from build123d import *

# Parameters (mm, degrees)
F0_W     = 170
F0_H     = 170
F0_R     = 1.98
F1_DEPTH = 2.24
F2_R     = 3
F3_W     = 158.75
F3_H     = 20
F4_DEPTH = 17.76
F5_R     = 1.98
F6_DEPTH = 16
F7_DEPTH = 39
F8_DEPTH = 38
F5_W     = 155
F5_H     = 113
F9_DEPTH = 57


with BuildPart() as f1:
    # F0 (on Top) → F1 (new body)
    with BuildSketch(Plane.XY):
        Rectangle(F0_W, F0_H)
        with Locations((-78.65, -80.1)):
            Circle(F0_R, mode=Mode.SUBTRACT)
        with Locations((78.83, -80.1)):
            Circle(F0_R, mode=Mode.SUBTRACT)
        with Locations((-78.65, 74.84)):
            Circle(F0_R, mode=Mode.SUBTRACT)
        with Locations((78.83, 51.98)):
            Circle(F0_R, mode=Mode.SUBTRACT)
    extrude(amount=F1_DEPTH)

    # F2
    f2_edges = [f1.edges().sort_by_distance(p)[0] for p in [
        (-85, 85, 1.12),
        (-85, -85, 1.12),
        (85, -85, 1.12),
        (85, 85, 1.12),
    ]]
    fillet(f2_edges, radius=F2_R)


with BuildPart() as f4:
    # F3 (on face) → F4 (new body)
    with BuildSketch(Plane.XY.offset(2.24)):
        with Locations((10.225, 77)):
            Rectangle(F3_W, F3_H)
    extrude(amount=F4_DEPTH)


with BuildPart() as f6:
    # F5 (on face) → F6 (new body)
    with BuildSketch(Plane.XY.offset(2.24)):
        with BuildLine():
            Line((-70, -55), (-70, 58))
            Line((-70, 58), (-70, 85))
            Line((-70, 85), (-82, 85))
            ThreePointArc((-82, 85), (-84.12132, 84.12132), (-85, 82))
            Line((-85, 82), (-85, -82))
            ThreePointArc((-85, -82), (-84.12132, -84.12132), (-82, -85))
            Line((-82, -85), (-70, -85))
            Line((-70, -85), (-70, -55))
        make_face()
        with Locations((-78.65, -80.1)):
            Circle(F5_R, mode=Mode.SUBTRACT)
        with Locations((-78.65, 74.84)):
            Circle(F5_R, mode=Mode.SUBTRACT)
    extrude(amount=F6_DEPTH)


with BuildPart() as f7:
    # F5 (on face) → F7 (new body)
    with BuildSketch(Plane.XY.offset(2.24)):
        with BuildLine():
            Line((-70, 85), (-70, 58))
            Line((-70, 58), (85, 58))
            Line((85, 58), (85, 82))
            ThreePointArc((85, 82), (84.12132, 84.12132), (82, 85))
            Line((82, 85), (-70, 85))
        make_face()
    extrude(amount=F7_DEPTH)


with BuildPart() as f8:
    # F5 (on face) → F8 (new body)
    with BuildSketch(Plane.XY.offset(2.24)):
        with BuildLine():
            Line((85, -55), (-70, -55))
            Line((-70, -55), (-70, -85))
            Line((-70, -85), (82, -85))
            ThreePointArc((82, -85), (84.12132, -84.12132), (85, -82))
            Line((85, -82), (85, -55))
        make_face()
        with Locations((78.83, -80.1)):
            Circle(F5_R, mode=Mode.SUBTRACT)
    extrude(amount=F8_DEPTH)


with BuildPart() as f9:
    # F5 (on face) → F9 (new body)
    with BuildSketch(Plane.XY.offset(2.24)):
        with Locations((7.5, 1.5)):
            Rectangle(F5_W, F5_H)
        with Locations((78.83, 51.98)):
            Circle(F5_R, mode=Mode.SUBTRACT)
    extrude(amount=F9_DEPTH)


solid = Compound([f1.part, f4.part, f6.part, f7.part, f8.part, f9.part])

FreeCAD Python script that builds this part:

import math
import FreeCAD as App
import Part
import Sketcher


def edges_at(feature, points):
    """Names of the edges that pass closest to the given points."""
    edges = feature.Shape.Edges
    near = lambda p: min(range(len(edges)), key=lambda i: edges[i].distToShape(Part.Vertex(*p))[0])
    return sorted({f"Edge{near(p) + 1}" for p in points})


def add_polygon(sketch, points):
    """Adds a closed chain of lines whose ends are joined by coincident constraints."""
    first, n = sketch.GeometryCount, len(points)
    for a, b in zip(points, points[1:] + points[:1]):
        sketch.addGeometry(Part.LineSegment(App.Vector(*a, 0), App.Vector(*b, 0)), False)
    for i in range(n):
        sketch.addConstraint(Sketcher.Constraint("Coincident", first + i, 2, first + (i + 1) % n, 1))

doc = App.newDocument("Part")
params = doc.addObject("Spreadsheet::Sheet", "Params")
for row, (alias, value) in enumerate([
    ("sketch1_diameter", "3.96 mm"),
    ("sketch1_width", "170 mm"),
    ("pad1_length", "2.24 mm"),
    ("fillet_radius", "3 mm"),
    ("sketch2_height", "20 mm"),
    ("sketch2_width", "158.75 mm"),
    ("pad2_length", "17.76 mm"),
    ("sketch3_radius", "3.000001 mm"),
    ("sketch3_diameter", "3.96 mm"),
    ("sketch3_width", "12 mm"),
    ("sketch3_height", "164 mm"),
    ("pad3_length", "16 mm"),
    ("sketch4_radius", "3.000001 mm"),
    ("sketch4_width", "155 mm"),
    ("sketch4_height", "27 mm"),
    ("pad4_length", "39 mm"),
    ("sketch5_radius", "3.000001 mm"),
    ("sketch5_diameter", "3.96 mm"),
    ("sketch5_width", "155 mm"),
    ("sketch5_height", "30 mm"),
    ("pad5_length", "38 mm"),
    ("sketch6_diameter", "3.96 mm"),
    ("sketch6_width", "155 mm"),
    ("sketch6_height", "113 mm"),
    ("pad6_length", "57 mm"),
], start=1):
    params.set(f"A{row}", alias)
    params.set(f"B{row}", "=" + value)
    params.setAlias(f"B{row}", alias)

body = doc.addObject("PartDesign::Body", "Body")

sketch1 = body.newObject("Sketcher::SketchObject", "Sketch")
sketch1.AttachmentSupport = (doc.getObject("XY_Plane"), [""])
sketch1.MapMode = "FlatFace"
add_polygon(sketch1, [(-85, 85), (-85, -85), (85, -85), (85, 85)])
sketch1.addGeometry(Part.Circle(App.Vector(-78.7, -80.1, 0), App.Vector(0, 0, 1), 2), False)
sketch1.addGeometry(Part.Circle(App.Vector(78.8, -80.1, 0), App.Vector(0, 0, 1), 2), False)
sketch1.addGeometry(Part.Circle(App.Vector(-78.7, 74.8, 0), App.Vector(0, 0, 1), 2), False)
sketch1.addGeometry(Part.Circle(App.Vector(78.8, 52, 0), App.Vector(0, 0, 1), 2), False)
sketch1.addConstraint(Sketcher.Constraint("Vertical", 0))
sketch1.addConstraint(Sketcher.Constraint("Horizontal", 1))
sketch1.addConstraint(Sketcher.Constraint("Vertical", 2))
sketch1.addConstraint(Sketcher.Constraint("Horizontal", 3))
sketch1.addConstraint(Sketcher.Constraint("Equal", 4, 5))
sketch1.addConstraint(Sketcher.Constraint("Equal", 5, 6))
sketch1.addConstraint(Sketcher.Constraint("Equal", 6, 7))
sketch1.addConstraint(Sketcher.Constraint("Symmetric", 0, 2, 2, 2, -1, 1))
sketch1.addConstraint(Sketcher.Constraint("Horizontal", 4, 3, 5, 3))
sketch1.addConstraint(Sketcher.Constraint("Vertical", 4, 3, 6, 3))
sketch1.addConstraint(Sketcher.Constraint("Vertical", 5, 3, 7, 3))
sketch1.addConstraint(Sketcher.Constraint("Equal", 3, 0))
sketch1.addConstraint(Sketcher.Constraint("Diameter", 4, 3.96))
sketch1.addConstraint(Sketcher.Constraint("DistanceX", 1, 1, 1, 2, 170.0))
sketch1.addConstraint(Sketcher.Constraint("DistanceY", 4, 3, -1, 1, 80.1))
sketch1.addConstraint(Sketcher.Constraint("DistanceX", 4, 3, -1, 1, 78.65))
sketch1.addConstraint(Sketcher.Constraint("DistanceX", -1, 1, 5, 3, 78.83))
sketch1.addConstraint(Sketcher.Constraint("DistanceY", -1, 1, 6, 3, 74.84))
sketch1.addConstraint(Sketcher.Constraint("DistanceY", -1, 1, 7, 3, 51.98))
sketch1.setExpression("Constraints[16]", "Params.sketch1_diameter")
sketch1.setExpression("Constraints[17]", "Params.sketch1_width")
pad1 = body.newObject("PartDesign::Pad", "Pad")
pad1.Profile = sketch1
pad1.setExpression("Length", "Params.pad1_length")
doc.recompute()

fillet = body.newObject("PartDesign::Fillet", "Fillet")
fillet.Base = (pad1, edges_at(pad1, [
    (-85, 85, 1.12),
    (-85, -85, 1.12),
    (85, -85, 1.12),
    (85, 85, 1.12),
]))
fillet.setExpression("Radius", "Params.fillet_radius")
body2 = doc.addObject("PartDesign::Body", "Body001")

sketch2 = body2.newObject("Sketcher::SketchObject", "Sketch001")
sketch2.AttachmentSupport = (doc.getObject("XY_Plane001"), [""])
sketch2.MapMode = "FlatFace"
sketch2.AttachmentOffset = App.Placement(App.Vector(0, 0, 2.24), App.Rotation())
add_polygon(sketch2, [(-69, 87), (-69, 67), (90, 67), (90, 87)])
sketch2.addConstraint(Sketcher.Constraint("Vertical", 0))
sketch2.addConstraint(Sketcher.Constraint("Horizontal", 1))
sketch2.addConstraint(Sketcher.Constraint("Vertical", 2))
sketch2.addConstraint(Sketcher.Constraint("Horizontal", 3))
sketch2.addConstraint(Sketcher.Constraint("DistanceY", 0, 2, 0, 1, 20.0))
sketch2.addConstraint(Sketcher.Constraint("DistanceY", -1, 1, 0, 2, 67.0))
sketch2.addConstraint(Sketcher.Constraint("DistanceX", 1, 1, 1, 2, 158.75))
sketch2.addConstraint(Sketcher.Constraint("DistanceX", -1, 1, 1, 2, 89.6))
sketch2.setExpression("Constraints[8]", "Params.sketch2_height")
sketch2.setExpression("Constraints[10]", "Params.sketch2_width")
pad2 = body2.newObject("PartDesign::Pad", "Pad001")
pad2.Profile = sketch2
pad2.setExpression("Length", "Params.pad2_length")
body3 = doc.addObject("PartDesign::Body", "Body002")

sketch3 = body3.newObject("Sketcher::SketchObject", "Sketch002")
sketch3.AttachmentSupport = (doc.getObject("XY_Plane002"), [""])
sketch3.MapMode = "FlatFace"
sketch3.AttachmentOffset = App.Placement(App.Vector(0, 0, 2.24), App.Rotation())
sketch3.addGeometry(Part.LineSegment(App.Vector(-70, 85, 0), App.Vector(-82, 85, 0)), False)
sketch3.addGeometry(Part.ArcOfCircle(Part.Circle(App.Vector(-82, 82, 0), App.Vector(0, 0, 1), 3), math.radians(90), math.radians(180)), False)
sketch3.addGeometry(Part.LineSegment(App.Vector(-85, 82, 0), App.Vector(-85, -82, 0)), False)
sketch3.addGeometry(Part.ArcOfCircle(Part.Circle(App.Vector(-82, -82, 0), App.Vector(0, 0, 1), 3), math.radians(-180), math.radians(-90)), False)
sketch3.addGeometry(Part.LineSegment(App.Vector(-82, -85, 0), App.Vector(-70, -85, 0)), False)
sketch3.addGeometry(Part.LineSegment(App.Vector(-70, -85, 0), App.Vector(-70, 85, 0)), False)
sketch3.addGeometry(Part.Circle(App.Vector(-78.7, -80.1, 0), App.Vector(0, 0, 1), 2), False)
sketch3.addGeometry(Part.Circle(App.Vector(-78.7, 74.8, 0), App.Vector(0, 0, 1), 2), False)
sketch3.addConstraint(Sketcher.Constraint("Tangent", 0, 2, 1, 1))
sketch3.addConstraint(Sketcher.Constraint("Tangent", 1, 2, 2, 1))
sketch3.addConstraint(Sketcher.Constraint("Tangent", 2, 2, 3, 1))
sketch3.addConstraint(Sketcher.Constraint("Tangent", 3, 2, 4, 1))
sketch3.addConstraint(Sketcher.Constraint("Coincident", 4, 2, 5, 1))
sketch3.addConstraint(Sketcher.Constraint("Coincident", 5, 2, 0, 1))
sketch3.addConstraint(Sketcher.Constraint("Horizontal", 0))
sketch3.addConstraint(Sketcher.Constraint("Vertical", 2))
sketch3.addConstraint(Sketcher.Constraint("Horizontal", 4))
sketch3.addConstraint(Sketcher.Constraint("Vertical", 5))
sketch3.addConstraint(Sketcher.Constraint("Equal", 1, 3))
sketch3.addConstraint(Sketcher.Constraint("Equal", 6, 7))
sketch3.addConstraint(Sketcher.Constraint("Vertical", 6, 3, 7, 3))
sketch3.addConstraint(Sketcher.Constraint("Radius", 1, 3.000001))
sketch3.addConstraint(Sketcher.Constraint("Diameter", 6, 3.96))
sketch3.addConstraint(Sketcher.Constraint("DistanceX", 0, 2, 0, 1, 12.0))
sketch3.addConstraint(Sketcher.Constraint("DistanceY", 2, 2, 2, 1, 164.0))
sketch3.addConstraint(Sketcher.Constraint("DistanceX", 1, 3, -1, 1, 81.999999))
sketch3.addConstraint(Sketcher.Constraint("DistanceY", -1, 1, 1, 3, 81.999999))
sketch3.addConstraint(Sketcher.Constraint("DistanceY", 6, 3, -1, 1, 80.1))
sketch3.addConstraint(Sketcher.Constraint("DistanceX", 6, 3, -1, 1, 78.65))
sketch3.addConstraint(Sketcher.Constraint("DistanceY", -1, 1, 7, 3, 74.84))
sketch3.setExpression("Constraints[13]", "Params.sketch3_radius")
sketch3.setExpression("Constraints[14]", "Params.sketch3_diameter")
sketch3.setExpression("Constraints[15]", "Params.sketch3_width")
sketch3.setExpression("Constraints[16]", "Params.sketch3_height")
pad3 = body3.newObject("PartDesign::Pad", "Pad002")
pad3.Profile = sketch3
pad3.setExpression("Length", "Params.pad3_length")
body4 = doc.addObject("PartDesign::Body", "Body003")

sketch4 = body4.newObject("Sketcher::SketchObject", "Sketch003")
sketch4.AttachmentSupport = (doc.getObject("XY_Plane003"), [""])
sketch4.MapMode = "FlatFace"
sketch4.AttachmentOffset = App.Placement(App.Vector(0, 0, 2.24), App.Rotation())
sketch4.addGeometry(Part.LineSegment(App.Vector(-70, 85, 0), App.Vector(-70, 58, 0)), False)
sketch4.addGeometry(Part.LineSegment(App.Vector(-70, 58, 0), App.Vector(85, 58, 0)), False)
sketch4.addGeometry(Part.LineSegment(App.Vector(85, 58, 0), App.Vector(85, 82, 0)), False)
sketch4.addGeometry(Part.ArcOfCircle(Part.Circle(App.Vector(82, 82, 0), App.Vector(0, 0, 1), 3), math.radians(0), math.radians(90)), False)
sketch4.addGeometry(Part.LineSegment(App.Vector(82, 85, 0), App.Vector(-70, 85, 0)), False)
sketch4.addConstraint(Sketcher.Constraint("Coincident", 0, 2, 1, 1))
sketch4.addConstraint(Sketcher.Constraint("Coincident", 1, 2, 2, 1))
sketch4.addConstraint(Sketcher.Constraint("Tangent", 2, 2, 3, 1))
sketch4.addConstraint(Sketcher.Constraint("Tangent", 3, 2, 4, 1))
sketch4.addConstraint(Sketcher.Constraint("Coincident", 4, 2, 0, 1))
sketch4.addConstraint(Sketcher.Constraint("Vertical", 0))
sketch4.addConstraint(Sketcher.Constraint("Horizontal", 1))
sketch4.addConstraint(Sketcher.Constraint("Vertical", 2))
sketch4.addConstraint(Sketcher.Constraint("Horizontal", 4))
sketch4.addConstraint(Sketcher.Constraint("Radius", 3, 3.000001))
sketch4.addConstraint(Sketcher.Constraint("DistanceX", 1, 1, 1, 2, 155.0))
sketch4.addConstraint(Sketcher.Constraint("DistanceY", 0, 2, 0, 1, 27.0))
sketch4.addConstraint(Sketcher.Constraint("DistanceX", -1, 1, 3, 3, 81.999999))
sketch4.addConstraint(Sketcher.Constraint("DistanceY", -1, 1, 3, 3, 81.999999))
sketch4.setExpression("Constraints[9]", "Params.sketch4_radius")
sketch4.setExpression("Constraints[10]", "Params.sketch4_width")
sketch4.setExpression("Constraints[11]", "Params.sketch4_height")
pad4 = body4.newObject("PartDesign::Pad", "Pad003")
pad4.Profile = sketch4
pad4.setExpression("Length", "Params.pad4_length")
body5 = doc.addObject("PartDesign::Body", "Body004")

sketch5 = body5.newObject("Sketcher::SketchObject", "Sketch004")
sketch5.AttachmentSupport = (doc.getObject("XY_Plane004"), [""])
sketch5.MapMode = "FlatFace"
sketch5.AttachmentOffset = App.Placement(App.Vector(0, 0, 2.24), App.Rotation())
sketch5.addGeometry(Part.LineSegment(App.Vector(85, -55, 0), App.Vector(-70, -55, 0)), False)
sketch5.addGeometry(Part.LineSegment(App.Vector(-70, -55, 0), App.Vector(-70, -85, 0)), False)
sketch5.addGeometry(Part.LineSegment(App.Vector(-70, -85, 0), App.Vector(82, -85, 0)), False)
sketch5.addGeometry(Part.ArcOfCircle(Part.Circle(App.Vector(82, -82, 0), App.Vector(0, 0, 1), 3), math.radians(-90), math.radians(0)), False)
sketch5.addGeometry(Part.LineSegment(App.Vector(85, -82, 0), App.Vector(85, -55, 0)), False)
sketch5.addGeometry(Part.Circle(App.Vector(78.8, -80.1, 0), App.Vector(0, 0, 1), 2), False)
sketch5.addConstraint(Sketcher.Constraint("Coincident", 0, 2, 1, 1))
sketch5.addConstraint(Sketcher.Constraint("Coincident", 1, 2, 2, 1))
sketch5.addConstraint(Sketcher.Constraint("Tangent", 2, 2, 3, 1))
sketch5.addConstraint(Sketcher.Constraint("Tangent", 3, 2, 4, 1))
sketch5.addConstraint(Sketcher.Constraint("Coincident", 4, 2, 0, 1))
sketch5.addConstraint(Sketcher.Constraint("Horizontal", 0))
sketch5.addConstraint(Sketcher.Constraint("Vertical", 1))
sketch5.addConstraint(Sketcher.Constraint("Horizontal", 2))
sketch5.addConstraint(Sketcher.Constraint("Vertical", 4))
sketch5.addConstraint(Sketcher.Constraint("Radius", 3, 3.000001))
sketch5.addConstraint(Sketcher.Constraint("Diameter", 5, 3.96))
sketch5.addConstraint(Sketcher.Constraint("DistanceX", 0, 2, 0, 1, 155.0))
sketch5.addConstraint(Sketcher.Constraint("DistanceY", 1, 2, 1, 1, 30.0))
sketch5.addConstraint(Sketcher.Constraint("DistanceX", -1, 1, 3, 3, 81.999999))
sketch5.addConstraint(Sketcher.Constraint("DistanceY", 3, 3, -1, 1, 81.999999))
sketch5.addConstraint(Sketcher.Constraint("DistanceY", 5, 3, -1, 1, 80.1))
sketch5.addConstraint(Sketcher.Constraint("DistanceX", -1, 1, 5, 3, 78.83))
sketch5.setExpression("Constraints[9]", "Params.sketch5_radius")
sketch5.setExpression("Constraints[10]", "Params.sketch5_diameter")
sketch5.setExpression("Constraints[11]", "Params.sketch5_width")
sketch5.setExpression("Constraints[12]", "Params.sketch5_height")
pad5 = body5.newObject("PartDesign::Pad", "Pad004")
pad5.Profile = sketch5
pad5.setExpression("Length", "Params.pad5_length")
body6 = doc.addObject("PartDesign::Body", "Body005")

sketch6 = body6.newObject("Sketcher::SketchObject", "Sketch005")
sketch6.AttachmentSupport = (doc.getObject("XY_Plane005"), [""])
sketch6.MapMode = "FlatFace"
sketch6.AttachmentOffset = App.Placement(App.Vector(0, 0, 2.24), App.Rotation())
add_polygon(sketch6, [(-70, 58), (-70, -55), (85, -55), (85, 58)])
sketch6.addGeometry(Part.Circle(App.Vector(78.8, 52, 0), App.Vector(0, 0, 1), 2), False)
sketch6.addConstraint(Sketcher.Constraint("Vertical", 0))
sketch6.addConstraint(Sketcher.Constraint("Horizontal", 1))
sketch6.addConstraint(Sketcher.Constraint("Vertical", 2))
sketch6.addConstraint(Sketcher.Constraint("Horizontal", 3))
sketch6.addConstraint(Sketcher.Constraint("Diameter", 4, 3.96))
sketch6.addConstraint(Sketcher.Constraint("DistanceX", 1, 1, 1, 2, 155.0))
sketch6.addConstraint(Sketcher.Constraint("DistanceY", 0, 2, 0, 1, 113.0))
sketch6.addConstraint(Sketcher.Constraint("DistanceX", 0, 2, -1, 1, 70.0))
sketch6.addConstraint(Sketcher.Constraint("DistanceY", 0, 2, -1, 1, 55.0))
sketch6.addConstraint(Sketcher.Constraint("DistanceX", -1, 1, 4, 3, 78.83))
sketch6.addConstraint(Sketcher.Constraint("DistanceY", -1, 1, 4, 3, 51.98))
sketch6.setExpression("Constraints[8]", "Params.sketch6_diameter")
sketch6.setExpression("Constraints[9]", "Params.sketch6_width")
sketch6.setExpression("Constraints[10]", "Params.sketch6_height")
pad6 = body6.newObject("PartDesign::Pad", "Pad005")
pad6.Profile = sketch6
pad6.setExpression("Length", "Params.pad6_length")

doc.recompute()
